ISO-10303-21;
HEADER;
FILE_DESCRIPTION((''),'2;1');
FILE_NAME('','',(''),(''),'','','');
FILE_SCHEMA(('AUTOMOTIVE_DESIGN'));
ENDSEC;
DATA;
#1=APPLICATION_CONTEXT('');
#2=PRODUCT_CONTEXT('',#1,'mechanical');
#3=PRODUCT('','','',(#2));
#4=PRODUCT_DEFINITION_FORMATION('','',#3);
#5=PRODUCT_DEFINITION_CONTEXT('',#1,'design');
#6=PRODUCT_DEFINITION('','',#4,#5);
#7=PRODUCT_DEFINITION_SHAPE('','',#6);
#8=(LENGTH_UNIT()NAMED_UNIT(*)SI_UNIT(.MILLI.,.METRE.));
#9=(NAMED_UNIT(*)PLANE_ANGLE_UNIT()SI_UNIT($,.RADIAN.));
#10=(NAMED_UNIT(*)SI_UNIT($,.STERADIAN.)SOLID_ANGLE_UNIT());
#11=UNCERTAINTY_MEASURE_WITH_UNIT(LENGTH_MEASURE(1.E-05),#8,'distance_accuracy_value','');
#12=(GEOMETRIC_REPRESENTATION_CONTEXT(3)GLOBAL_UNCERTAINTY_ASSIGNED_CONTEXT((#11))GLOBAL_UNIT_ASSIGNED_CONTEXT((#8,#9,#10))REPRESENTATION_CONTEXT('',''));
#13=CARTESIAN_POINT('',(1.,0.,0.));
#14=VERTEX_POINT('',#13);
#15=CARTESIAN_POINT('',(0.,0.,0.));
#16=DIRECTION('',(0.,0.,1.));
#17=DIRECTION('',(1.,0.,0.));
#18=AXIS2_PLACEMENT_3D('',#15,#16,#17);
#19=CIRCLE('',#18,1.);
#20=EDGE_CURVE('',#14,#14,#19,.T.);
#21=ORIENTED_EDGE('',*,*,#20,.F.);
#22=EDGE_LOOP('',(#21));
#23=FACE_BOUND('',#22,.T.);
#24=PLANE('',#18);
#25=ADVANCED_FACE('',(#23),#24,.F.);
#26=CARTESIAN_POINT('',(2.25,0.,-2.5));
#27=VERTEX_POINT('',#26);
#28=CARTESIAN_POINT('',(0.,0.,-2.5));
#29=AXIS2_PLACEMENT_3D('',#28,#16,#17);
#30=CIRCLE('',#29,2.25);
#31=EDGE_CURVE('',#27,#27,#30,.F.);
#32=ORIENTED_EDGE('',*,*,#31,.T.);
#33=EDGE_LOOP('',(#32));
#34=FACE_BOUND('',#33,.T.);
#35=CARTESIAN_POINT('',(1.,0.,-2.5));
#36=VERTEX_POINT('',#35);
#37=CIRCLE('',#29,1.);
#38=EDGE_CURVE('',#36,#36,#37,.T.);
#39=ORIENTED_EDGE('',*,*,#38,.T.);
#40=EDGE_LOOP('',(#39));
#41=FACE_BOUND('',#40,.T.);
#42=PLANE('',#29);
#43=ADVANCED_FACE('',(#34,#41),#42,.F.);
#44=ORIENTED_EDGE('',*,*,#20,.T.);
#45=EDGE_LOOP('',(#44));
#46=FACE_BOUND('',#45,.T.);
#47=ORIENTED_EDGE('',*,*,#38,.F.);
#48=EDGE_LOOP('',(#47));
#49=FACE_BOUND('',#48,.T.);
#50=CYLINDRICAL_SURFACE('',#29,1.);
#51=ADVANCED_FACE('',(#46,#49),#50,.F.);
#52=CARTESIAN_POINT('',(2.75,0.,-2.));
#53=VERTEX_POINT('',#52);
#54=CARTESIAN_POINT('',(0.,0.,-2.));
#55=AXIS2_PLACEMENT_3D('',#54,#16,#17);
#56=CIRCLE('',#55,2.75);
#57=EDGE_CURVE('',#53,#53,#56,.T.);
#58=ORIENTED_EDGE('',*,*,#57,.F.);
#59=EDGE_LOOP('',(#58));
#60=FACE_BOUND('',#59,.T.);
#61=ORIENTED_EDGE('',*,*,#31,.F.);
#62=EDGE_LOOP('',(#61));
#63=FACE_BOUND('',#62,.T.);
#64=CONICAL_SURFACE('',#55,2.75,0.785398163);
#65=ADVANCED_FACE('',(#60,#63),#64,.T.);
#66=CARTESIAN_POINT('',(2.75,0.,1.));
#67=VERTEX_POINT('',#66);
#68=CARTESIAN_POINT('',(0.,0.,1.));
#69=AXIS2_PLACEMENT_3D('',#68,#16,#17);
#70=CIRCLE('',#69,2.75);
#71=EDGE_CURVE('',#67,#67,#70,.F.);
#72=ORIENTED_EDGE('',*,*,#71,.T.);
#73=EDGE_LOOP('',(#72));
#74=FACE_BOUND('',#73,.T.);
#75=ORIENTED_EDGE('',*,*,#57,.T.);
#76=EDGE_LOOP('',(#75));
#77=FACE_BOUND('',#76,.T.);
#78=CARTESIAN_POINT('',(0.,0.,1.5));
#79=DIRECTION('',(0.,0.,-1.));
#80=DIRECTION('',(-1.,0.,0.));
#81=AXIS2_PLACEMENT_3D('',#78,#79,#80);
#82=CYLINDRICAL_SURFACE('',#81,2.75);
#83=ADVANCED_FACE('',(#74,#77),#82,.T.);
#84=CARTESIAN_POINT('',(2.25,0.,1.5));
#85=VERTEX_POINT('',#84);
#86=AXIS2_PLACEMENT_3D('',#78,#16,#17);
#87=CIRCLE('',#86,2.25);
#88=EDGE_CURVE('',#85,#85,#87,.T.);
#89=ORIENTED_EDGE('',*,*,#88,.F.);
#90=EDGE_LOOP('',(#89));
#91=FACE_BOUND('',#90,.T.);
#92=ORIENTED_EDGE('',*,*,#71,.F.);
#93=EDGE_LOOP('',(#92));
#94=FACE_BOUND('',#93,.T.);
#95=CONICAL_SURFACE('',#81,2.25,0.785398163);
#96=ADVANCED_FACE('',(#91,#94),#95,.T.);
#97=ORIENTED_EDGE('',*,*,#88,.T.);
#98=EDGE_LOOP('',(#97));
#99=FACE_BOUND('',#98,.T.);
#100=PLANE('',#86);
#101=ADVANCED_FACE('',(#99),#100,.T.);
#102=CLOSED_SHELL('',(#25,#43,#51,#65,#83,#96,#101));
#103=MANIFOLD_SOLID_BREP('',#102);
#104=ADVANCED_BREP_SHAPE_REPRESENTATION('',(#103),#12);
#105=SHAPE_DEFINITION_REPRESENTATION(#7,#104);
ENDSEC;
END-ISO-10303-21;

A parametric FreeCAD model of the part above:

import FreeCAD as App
import Part
import Sketcher
Q = App.Units.Quantity


def edges_at(feature, points):
    """Names of the edges that pass closest to the given points."""
    edges = feature.Shape.Edges
    near = lambda p: min(range(len(edges)), key=lambda i: edges[i].distToShape(Part.Vertex(*p))[0])
    return sorted({f"Edge{near(p) + 1}" for p in points})

doc = App.newDocument("Part")
body = doc.addObject("PartDesign::Body", "Body")

sketch1 = body.newObject("Sketcher::SketchObject", "Sketch")
sketch1.AttachmentSupport = (doc.getObject("XY_Plane"), [""])
sketch1.MapMode = "FlatFace"
sketch1.addGeometry(Part.Circle(App.Vector(0, 0, 0), App.Vector(0, 0, 1), 2.8), False)
sketch1.addConstraint(Sketcher.Constraint("Coincident", 0, 3, -1, 1))
sketch1.addConstraint(Sketcher.Constraint("Diameter", 0, Q("5.5 mm")))
pad1 = body.newObject("PartDesign::Pad", "Pad")
pad1.Profile = sketch1
pad1.Length = 1.5

sketch2 = body.newObject("Sketcher::SketchObject", "Sketch001")
sketch2.AttachmentSupport = (doc.getObject("XY_Plane"), [""])
sketch2.MapMode = "FlatFace"
sketch2.AttachmentOffset = App.Placement(App.Vector(0, 0, -2.5), App.Rotation())
sketch2.addGeometry(Part.Circle(App.Vector(0, 0, 0), App.Vector(0, 0, 1), 2.8), False)
sketch2.addGeometry(Part.Circle(App.Vector(0, 0, 0), App.Vector(0, 0, 1), 1), False)
sketch2.addConstraint(Sketcher.Constraint("Coincident", 0, 3, -1, 1))
sketch2.addConstraint(Sketcher.Constraint("Coincident", 1, 3, -1, 1))
sketch2.addConstraint(Sketcher.Constraint("Diameter", 1, Q("2 mm")))
sketch2.addConstraint(Sketcher.Constraint("Diameter", 0, Q("5.5 mm")))
pad2 = body.newObject("PartDesign::Pad", "Pad001")
pad2.Profile = sketch2
pad2.Length = 2.5
doc.recompute()

chamfer = body.newObject("PartDesign::Chamfer", "Chamfer")
chamfer.Base = (pad2, edges_at(pad2, [(-2.75, 0, 1.5), (-2.75, 0, -2.5)]))
chamfer.Size = 0.5

doc.recompute()
